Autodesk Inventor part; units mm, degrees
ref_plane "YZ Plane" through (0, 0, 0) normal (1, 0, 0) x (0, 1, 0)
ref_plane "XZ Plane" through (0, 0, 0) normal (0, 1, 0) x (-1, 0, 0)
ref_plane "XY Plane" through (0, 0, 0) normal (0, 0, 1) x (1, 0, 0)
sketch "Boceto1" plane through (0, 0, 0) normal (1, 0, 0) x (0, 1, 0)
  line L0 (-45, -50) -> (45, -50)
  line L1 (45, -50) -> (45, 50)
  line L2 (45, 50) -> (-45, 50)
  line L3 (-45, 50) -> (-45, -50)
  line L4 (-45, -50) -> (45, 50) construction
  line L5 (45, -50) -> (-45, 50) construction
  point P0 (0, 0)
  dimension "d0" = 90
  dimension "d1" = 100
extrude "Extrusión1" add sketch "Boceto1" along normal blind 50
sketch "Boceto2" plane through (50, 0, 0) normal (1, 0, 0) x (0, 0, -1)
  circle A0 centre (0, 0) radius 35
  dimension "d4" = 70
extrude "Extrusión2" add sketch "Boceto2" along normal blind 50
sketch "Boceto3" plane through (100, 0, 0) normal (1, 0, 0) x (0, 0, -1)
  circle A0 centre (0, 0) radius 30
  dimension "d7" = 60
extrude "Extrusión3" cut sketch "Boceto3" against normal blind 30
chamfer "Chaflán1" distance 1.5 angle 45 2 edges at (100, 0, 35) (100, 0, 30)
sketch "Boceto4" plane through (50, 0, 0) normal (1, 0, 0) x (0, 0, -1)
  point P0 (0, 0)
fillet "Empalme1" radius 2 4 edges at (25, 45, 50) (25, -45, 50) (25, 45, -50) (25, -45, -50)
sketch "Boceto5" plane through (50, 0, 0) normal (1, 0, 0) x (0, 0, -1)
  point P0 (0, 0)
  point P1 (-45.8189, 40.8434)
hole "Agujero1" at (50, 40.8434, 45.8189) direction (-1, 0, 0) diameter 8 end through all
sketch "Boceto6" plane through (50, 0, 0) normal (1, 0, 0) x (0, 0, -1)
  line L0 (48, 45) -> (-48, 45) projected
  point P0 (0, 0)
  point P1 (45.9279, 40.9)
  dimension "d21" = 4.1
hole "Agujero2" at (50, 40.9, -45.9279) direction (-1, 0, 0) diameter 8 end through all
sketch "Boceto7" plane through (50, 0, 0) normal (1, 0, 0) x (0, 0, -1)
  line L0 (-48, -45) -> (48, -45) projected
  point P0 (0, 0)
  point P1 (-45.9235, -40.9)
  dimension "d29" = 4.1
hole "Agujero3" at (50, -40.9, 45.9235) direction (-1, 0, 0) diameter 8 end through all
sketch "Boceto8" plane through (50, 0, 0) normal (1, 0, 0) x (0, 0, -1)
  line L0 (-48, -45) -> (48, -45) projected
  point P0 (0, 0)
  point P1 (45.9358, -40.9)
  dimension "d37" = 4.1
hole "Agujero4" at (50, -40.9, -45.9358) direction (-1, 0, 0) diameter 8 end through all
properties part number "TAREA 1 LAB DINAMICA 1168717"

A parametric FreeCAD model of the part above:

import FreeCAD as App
import Part
import Sketcher

V = App.Vector
Q = App.Units.Quantity


def edges_at(feature, points):
    """Names of the edges that pass closest to the given points."""
    edges = feature.Shape.Edges
    near = lambda p: min(range(len(edges)), key=lambda i: edges[i].distToShape(Part.Vertex(*p))[0])
    return sorted({f"Edge{near(p) + 1}" for p in points})


def add_polygon(sketch, points):
    """Adds a closed chain of lines whose ends are joined by coincident constraints."""
    first, n = sketch.GeometryCount, len(points)
    for a, b in zip(points, points[1:] + points[:1]):
        sketch.addGeometry(Part.LineSegment(App.Vector(*a, 0), App.Vector(*b, 0)), False)
    for i in range(n):
        sketch.addConstraint(Sketcher.Constraint("Coincident", first + i, 2, first + (i + 1) % n, 1))

doc = App.newDocument("Part")
params = doc.addObject("Spreadsheet::Sheet", "Params")
for row, (alias, value) in enumerate([
    ("sketch1_width", "90 mm"),
    ("sketch1_height", "100 mm"),
    ("pad1_length", "50 mm"),
    ("sketch2_diameter", "70 mm"),
    ("pad2_length", "50 mm"),
    ("sketch3_diameter", "60 mm"),
    ("pocket1_length", "30 mm"),
    ("chamfer_size", "1.5 mm"),
    ("fillet_radius", "2 mm"),
    ("sketch4_diameter", "8 mm"),
    ("hole_diameter", "8 mm"),
    ("sketch5_diameter", "8 mm"),
    ("hole2_diameter", "8 mm"),
    ("sketch6_diameter", "8 mm"),
    ("hole3_diameter", "8 mm"),
    ("sketch7_diameter", "8 mm"),
    ("hole4_diameter", "8 mm"),
], start=1):
    params.set(f"A{row}", alias)
    params.set(f"B{row}", "=" + value)
    params.setAlias(f"B{row}", alias)

body = doc.addObject("PartDesign::Body", "Body")

# Sketch on YZ plane
sketch1 = body.newObject("Sketcher::SketchObject", "Sketch")
sketch1.AttachmentSupport = (doc.getObject("YZ_Plane"), [""])
sketch1.MapMode = "FlatFace"
add_polygon(sketch1, [(-45, 50), (-45, -50), (45, -50), (45, 50)])  # lines 0-3
sketch1.addConstraint([
    Sketcher.Constraint("Vertical", 0),
    Sketcher.Constraint("Horizontal", 1),
    Sketcher.Constraint("Vertical", 2),
    Sketcher.Constraint("Horizontal", 3),
    Sketcher.Constraint("Symmetric", 0, 2, 2, 2, -1, 1),
    Sketcher.Constraint("DistanceX", 1, 1, 1, 2, Q("90 mm")),
    Sketcher.Constraint("DistanceY", 0, 2, 0, 1, Q("100 mm")),
])
sketch1.setExpression("Constraints[9]", "Params.sketch1_width")
sketch1.setExpression("Constraints[10]", "Params.sketch1_height")
pad1 = body.newObject("PartDesign::Pad", "Pad")
pad1.Profile = sketch1
pad1.setExpression("Length", "Params.pad1_length")

# Sketch on YZ plane
sketch2 = body.newObject("Sketcher::SketchObject", "Sketch001")
sketch2.AttachmentSupport = (doc.getObject("YZ_Plane"), [""])
sketch2.MapMode = "FlatFace"
sketch2.AttachmentOffset = App.Placement(V(0, 0, 50), App.Rotation())
sketch2.addGeometry(Part.Circle(V(0, 0, 0), V(0, 0, 1), 35), False)
sketch2.addConstraint([
    Sketcher.Constraint("Coincident", 0, 3, -1, 1),
    Sketcher.Constraint("Diameter", 0, Q("70 mm")),
])
sketch2.setExpression("Constraints[1]", "Params.sketch2_diameter")
pad2 = body.newObject("PartDesign::Pad", "Pad001")
pad2.Profile = sketch2
pad2.setExpression("Length", "Params.pad2_length")

# Sketch on YZ plane
sketch3 = body.newObject("Sketcher::SketchObject", "Sketch002")
sketch3.AttachmentSupport = (doc.getObject("YZ_Plane"), [""])
sketch3.MapMode = "FlatFace"
sketch3.AttachmentOffset = App.Placement(V(0, 0, 100), App.Rotation())
sketch3.addGeometry(Part.Circle(V(0, 0, 0), V(0, 0, 1), 30), False)
sketch3.addConstraint([
    Sketcher.Constraint("Coincident", 0, 3, -1, 1),
    Sketcher.Constraint("Diameter", 0, Q("60 mm")),
])
sketch3.setExpression("Constraints[1]", "Params.sketch3_diameter")
pocket1 = body.newObject("PartDesign::Pocket", "Pocket")
pocket1.Profile = sketch3
pocket1.setExpression("Length", "Params.pocket1_length")
doc.recompute()

chamfer = body.newObject("PartDesign::Chamfer", "Chamfer")
chamfer.Base = (pocket1, edges_at(pocket1, [(100, 0, 35), (100, 0, 30)]))
chamfer.setExpression("Size", "Params.chamfer_size")
doc.recompute()

fillet = body.newObject("PartDesign::Fillet", "Fillet")
fillet.Base = (chamfer, edges_at(chamfer, [
    (25, 45, 50),
    (25, -45, 50),
    (25, 45, -50),
    (25, -45, -50),
]))
fillet.setExpression("Radius", "Params.fillet_radius")

# Sketch on YZ plane
sketch4 = body.newObject("Sketcher::SketchObject", "Sketch003")
sketch4.AttachmentSupport = (doc.getObject("YZ_Plane"), [""])
sketch4.MapMode = "FlatFace"
sketch4.AttachmentOffset = App.Placement(V(0, 0, 50), App.Rotation())
sketch4.addGeometry(Part.Circle(V(40.8, 45.8, 0), V(0, 0, 1), 4), False)
sketch4.addConstraint([
    Sketcher.Constraint("Diameter", 0, Q("8 mm")),
    Sketcher.Constraint("DistanceY", -1, 1, 0, 3, Q("45.819 mm")),
    Sketcher.Constraint("DistanceX", -1, 1, 0, 3, Q("40.8434 mm")),
])
sketch4.setExpression("Constraints[0]", "Params.sketch4_diameter")
doc.recompute()
hole = body.newObject("PartDesign::Hole", "Hole")
hole.Profile = sketch4
hole.ThreadType = "None"
hole.setExpression("Diameter", "Params.hole_diameter")
hole.DepthType = "ThroughAll"

# Sketch on YZ plane
sketch5 = body.newObject("Sketcher::SketchObject", "Sketch004")
sketch5.AttachmentSupport = (doc.getObject("YZ_Plane"), [""])
sketch5.MapMode = "FlatFace"
sketch5.AttachmentOffset = App.Placement(V(0, 0, 50), App.Rotation())
sketch5.addGeometry(Part.Circle(V(40.9, -45.9, 0), V(0, 0, 1), 4), False)
sketch5.addConstraint([
    Sketcher.Constraint("Diameter", 0, Q("8 mm")),
    Sketcher.Constraint("DistanceX", -1, 1, 0, 3, Q("40.9 mm")),
    Sketcher.Constraint("DistanceY", 0, 3, -1, 1, Q("45.928 mm")),
])
sketch5.setExpression("Constraints[0]", "Params.sketch5_diameter")
doc.recompute()
hole2 = body.newObject("PartDesign::Hole", "Hole001")
hole2.Profile = sketch5
hole2.ThreadType = "None"
hole2.setExpression("Diameter", "Params.hole2_diameter")
hole2.DepthType = "ThroughAll"

# Sketch on YZ plane
sketch6 = body.newObject("Sketcher::SketchObject", "Sketch005")
sketch6.AttachmentSupport = (doc.getObject("YZ_Plane"), [""])
sketch6.MapMode = "FlatFace"
sketch6.AttachmentOffset = App.Placement(V(0, 0, 50), App.Rotation())
sketch6.addGeometry(Part.Circle(V(-40.9, 45.9, 0), V(0, 0, 1), 4), False)
sketch6.addConstraint([
    Sketcher.Constraint("Diameter", 0, Q("8 mm")),
    Sketcher.Constraint("DistanceX", 0, 3, -1, 1, Q("40.9 mm")),
    Sketcher.Constraint("DistanceY", -1, 1, 0, 3, Q("45.9235 mm")),
])
sketch6.setExpression("Constraints[0]", "Params.sketch6_diameter")
doc.recompute()
hole3 = body.newObject("PartDesign::Hole", "Hole002")
hole3.Profile = sketch6
hole3.ThreadType = "None"
hole3.setExpression("Diameter", "Params.hole3_diameter")
hole3.DepthType = "ThroughAll"

# Sketch on YZ plane
sketch7 = body.newObject("Sketcher::SketchObject", "Sketch006")
sketch7.AttachmentSupport = (doc.getObject("YZ_Plane"), [""])
sketch7.MapMode = "FlatFace"
sketch7.AttachmentOffset = App.Placement(V(0, 0, 50), App.Rotation())
sketch7.addGeometry(Part.Circle(V(-40.9, -45.9, 0), V(0, 0, 1), 4), False)
sketch7.addConstraint([
    Sketcher.Constraint("Diameter", 0, Q("8 mm")),
    Sketcher.Constraint("DistanceX", 0, 3, -1, 1, Q("40.9 mm")),
    Sketcher.Constraint("DistanceY", 0, 3, -1, 1, Q("45.9358 mm")),
])
sketch7.setExpression("Constraints[0]", "Params.sketch7_diameter")
doc.recompute()
hole4 = body.newObject("PartDesign::Hole", "Hole003")
hole4.Profile = sketch7
hole4.ThreadType = "None"
hole4.setExpression("Diameter", "Params.hole4_diameter")
hole4.DepthType = "ThroughAll"

doc.recompute()
